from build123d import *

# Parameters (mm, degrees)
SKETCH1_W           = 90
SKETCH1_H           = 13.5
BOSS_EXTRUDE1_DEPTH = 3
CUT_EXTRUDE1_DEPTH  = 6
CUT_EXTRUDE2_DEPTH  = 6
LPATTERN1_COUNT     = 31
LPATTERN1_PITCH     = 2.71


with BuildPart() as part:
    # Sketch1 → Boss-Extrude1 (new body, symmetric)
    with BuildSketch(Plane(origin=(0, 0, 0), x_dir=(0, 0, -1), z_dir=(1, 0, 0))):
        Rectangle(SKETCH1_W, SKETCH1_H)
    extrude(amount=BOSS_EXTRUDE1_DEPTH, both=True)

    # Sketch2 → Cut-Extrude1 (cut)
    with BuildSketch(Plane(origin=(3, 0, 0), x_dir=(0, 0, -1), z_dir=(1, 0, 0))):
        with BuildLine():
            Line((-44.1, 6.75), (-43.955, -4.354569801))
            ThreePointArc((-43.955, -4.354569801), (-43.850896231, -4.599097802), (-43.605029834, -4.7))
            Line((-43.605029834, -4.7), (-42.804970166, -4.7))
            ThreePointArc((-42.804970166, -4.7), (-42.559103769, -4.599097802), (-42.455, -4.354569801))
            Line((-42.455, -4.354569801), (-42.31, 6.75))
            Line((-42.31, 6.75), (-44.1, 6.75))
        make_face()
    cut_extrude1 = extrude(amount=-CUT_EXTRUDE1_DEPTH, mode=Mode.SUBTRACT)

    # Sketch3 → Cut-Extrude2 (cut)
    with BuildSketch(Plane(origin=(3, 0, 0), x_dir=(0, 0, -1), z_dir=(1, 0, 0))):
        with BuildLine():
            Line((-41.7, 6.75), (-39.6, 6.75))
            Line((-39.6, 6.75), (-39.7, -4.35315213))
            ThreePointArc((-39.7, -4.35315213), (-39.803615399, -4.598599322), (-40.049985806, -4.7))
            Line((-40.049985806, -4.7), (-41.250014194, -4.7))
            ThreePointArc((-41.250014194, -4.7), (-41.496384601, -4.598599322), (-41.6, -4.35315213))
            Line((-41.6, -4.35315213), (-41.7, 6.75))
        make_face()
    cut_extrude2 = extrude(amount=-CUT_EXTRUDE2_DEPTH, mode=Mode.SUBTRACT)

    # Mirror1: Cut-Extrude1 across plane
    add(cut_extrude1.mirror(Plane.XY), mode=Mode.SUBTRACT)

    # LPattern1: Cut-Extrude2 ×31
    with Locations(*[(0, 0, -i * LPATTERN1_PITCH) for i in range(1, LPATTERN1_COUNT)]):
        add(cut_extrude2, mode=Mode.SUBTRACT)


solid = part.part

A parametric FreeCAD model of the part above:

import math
import FreeCAD as App
import Part
import Sketcher
from FreeCAD import Vector
Q = App.Units.Quantity

doc = App.newDocument("Part")
body = doc.addObject("PartDesign::Body", "Body")

sketch1 = doc.addObject("Sketcher::SketchObject", "Sketch")
body.addObject(sketch1)
sketch1.AttachmentSupport = (doc.YZ_Plane, [""])
sketch1.MapMode = "FlatFace"
sketch1.addGeometry([
    Part.LineSegment(Vector(7, 45, 0), Vector(-7, 45, 0)),
    Part.LineSegment(Vector(-7, 45, 0), Vector(-7, -45, 0)),
    Part.LineSegment(Vector(-7, -45, 0), Vector(7, -45, 0)),
    Part.LineSegment(Vector(7, -45, 0), Vector(7, 45, 0)),
], False)
sketch1.addConstraint([
    Sketcher.Constraint("Coincident", 0, 2, 1, 1),
    Sketcher.Constraint("Coincident", 1, 2, 2, 1),
    Sketcher.Constraint("Coincident", 2, 2, 3, 1),
    Sketcher.Constraint("Coincident", 3, 2, 0, 1),
    Sketcher.Constraint("Horizontal", 0),
    Sketcher.Constraint("Vertical", 1),
    Sketcher.Constraint("Horizontal", 2),
    Sketcher.Constraint("Vertical", 3),
    Sketcher.Constraint("Symmetric", 0, 2, 2, 2, -1, 1),
    Sketcher.Constraint("DistanceY", 1, 2, 1, 1, Q("90 mm")),
    Sketcher.Constraint("DistanceX", 0, 2, 0, 1, Q("13.5 mm")),
])
pad1 = doc.addObject("PartDesign::Pad", "Pad")
body.addObject(pad1)
pad1.Profile = sketch1
pad1.Length = 6
pad1.Midplane = True

sketch2 = doc.addObject("Sketcher::SketchObject", "Sketch001")
body.addObject(sketch2)
sketch2.AttachmentSupport = (doc.YZ_Plane, [""])
sketch2.MapMode = "FlatFace"
sketch2.AttachmentOffset = App.Placement(Vector(0, 0, 3), App.Rotation())
sketch2.addGeometry([
    Part.LineSegment(Vector(6.75, 44.1, 0), Vector(-4.35, 43.95, 0)),
    Part.ArcOfCircle(Part.Circle(Vector(-4.35, 43.61, 0), Vector(0, 0, 1), 0.35), math.radians(91), math.radians(180)),
    Part.LineSegment(Vector(-4.7, 43.61, 0), Vector(-4.7, 42.8, 0)),
    Part.ArcOfCircle(Part.Circle(Vector(-4.35, 42.8, 0), Vector(0, 0, 1), 0.35), math.radians(180), math.radians(269)),
    Part.LineSegment(Vector(-4.35, 42.45, 0), Vector(6.75, 42.31, 0)),
    Part.LineSegment(Vector(6.75, 42.31, 0), Vector(6.75, 44.1, 0)),
], False)
sketch2.addConstraint([
    Sketcher.Constraint("Tangent", 0, 2, 1, 1),
    Sketcher.Constraint("Tangent", 1, 2, 2, 1),
    Sketcher.Constraint("Tangent", 2, 2, 3, 1),
    Sketcher.Constraint("Tangent", 3, 2, 4, 1),
    Sketcher.Constraint("Coincident", 4, 2, 5, 1),
    Sketcher.Constraint("Coincident", 5, 2, 0, 1),
    Sketcher.Constraint("Vertical", 2),
    Sketcher.Constraint("Vertical", 5),
    Sketcher.Constraint("Equal", 1, 3),
    Sketcher.Constraint("Vertical", 0, 2, 3, 2),
    Sketcher.Constraint("Radius", 1, Q("0.35 mm")),
    Sketcher.Constraint("DistanceY", 5, 1, 5, 2, Q("1.79 mm")),
    Sketcher.Constraint("DistanceX", 1, 2, -1, 1, Q("4.7 mm")),
    Sketcher.Constraint("DistanceY", -1, 1, 5, 2, Q("44.1 mm")),
    Sketcher.Constraint("DistanceY", 3, 2, 0, 2, Q("1.5 mm")),
    Sketcher.Constraint("DistanceX", 3, 3, 4, 2, Q("11.1 mm")),
])
pocket1 = doc.addObject("PartDesign::Pocket", "Pocket")
body.addObject(pocket1)
pocket1.Profile = sketch2
pocket1.Length = 6

sketch3 = doc.addObject("Sketcher::SketchObject", "Sketch002")
body.addObject(sketch3)
sketch3.AttachmentSupport = (doc.YZ_Plane, [""])
sketch3.MapMode = "FlatFace"
sketch3.AttachmentOffset = App.Placement(Vector(0, 0, 3), App.Rotation())
sketch3.addGeometry([
    Part.LineSegment(Vector(6.75, 39.6, 0), Vector(6.75, 41.7, 0)),
    Part.LineSegment(Vector(6.75, 41.7, 0), Vector(-4.35, 41.6, 0)),
    Part.ArcOfCircle(Part.Circle(Vector(-4.35, 41.25, 0), Vector(0, 0, 1), 0.35), math.radians(91), math.radians(180)),
    Part.LineSegment(Vector(-4.7, 41.25, 0), Vector(-4.7, 40.05, 0)),
    Part.ArcOfCircle(Part.Circle(Vector(-4.35, 40.05, 0), Vector(0, 0, 1), 0.35), math.radians(180), math.radians(269)),
    Part.LineSegment(Vector(-4.35, 39.7, 0), Vector(6.75, 39.6, 0)),
], False)
sketch3.addConstraint([
    Sketcher.Constraint("Coincident", 0, 2, 1, 1),
    Sketcher.Constraint("Tangent", 1, 2, 2, 1),
    Sketcher.Constraint("Tangent", 2, 2, 3, 1),
    Sketcher.Constraint("Tangent", 3, 2, 4, 1),
    Sketcher.Constraint("Tangent", 4, 2, 5, 1),
    Sketcher.Constraint("Coincident", 5, 2, 0, 1),
    Sketcher.Constraint("Vertical", 0),
    Sketcher.Constraint("Vertical", 3),
    Sketcher.Constraint("Equal", 2, 4),
    Sketcher.Constraint("Vertical", 1, 2, 4, 2),
    Sketcher.Constraint("Radius", 2, Q("0.35 mm")),
    Sketcher.Constraint("DistanceY", 0, 1, 0, 2, Q("2.1 mm")),
    Sketcher.Constraint("DistanceY", 5, 2, 1, 2, Q("2 mm")),
    Sketcher.Constraint("DistanceY", -1, 1, 0, 2, Q("41.7 mm")),
    Sketcher.Constraint("DistanceX", 2, 2, -1, 1, Q("4.7 mm")),
    Sketcher.Constraint("DistanceX", 2, 3, 0, 2, Q("11.1 mm")),
])
pocket2 = doc.addObject("PartDesign::Pocket", "Pocket001")
body.addObject(pocket2)
pocket2.Profile = sketch3
pocket2.Length = 6
doc.recompute()

mirrored = doc.addObject("PartDesign::Mirrored", "Mirrored")
body.addObject(mirrored)
mirrored.Originals = [pocket1]
mirrored.MirrorPlane = (doc.XY_Plane, [""])
body.Tip = mirrored
doc.recompute()

linearpattern = doc.addObject("PartDesign::LinearPattern", "LinearPattern")
body.addObject(linearpattern)
linearpattern.Originals = [pocket2]
linearpattern.Direction = (doc.Z_Axis, [""])
linearpattern.Mode = "offset"
linearpattern.Offset = 2.71
linearpattern.Occurrences = 31
linearpattern.Reversed = True
body.Tip = linearpattern

doc.recompute()
